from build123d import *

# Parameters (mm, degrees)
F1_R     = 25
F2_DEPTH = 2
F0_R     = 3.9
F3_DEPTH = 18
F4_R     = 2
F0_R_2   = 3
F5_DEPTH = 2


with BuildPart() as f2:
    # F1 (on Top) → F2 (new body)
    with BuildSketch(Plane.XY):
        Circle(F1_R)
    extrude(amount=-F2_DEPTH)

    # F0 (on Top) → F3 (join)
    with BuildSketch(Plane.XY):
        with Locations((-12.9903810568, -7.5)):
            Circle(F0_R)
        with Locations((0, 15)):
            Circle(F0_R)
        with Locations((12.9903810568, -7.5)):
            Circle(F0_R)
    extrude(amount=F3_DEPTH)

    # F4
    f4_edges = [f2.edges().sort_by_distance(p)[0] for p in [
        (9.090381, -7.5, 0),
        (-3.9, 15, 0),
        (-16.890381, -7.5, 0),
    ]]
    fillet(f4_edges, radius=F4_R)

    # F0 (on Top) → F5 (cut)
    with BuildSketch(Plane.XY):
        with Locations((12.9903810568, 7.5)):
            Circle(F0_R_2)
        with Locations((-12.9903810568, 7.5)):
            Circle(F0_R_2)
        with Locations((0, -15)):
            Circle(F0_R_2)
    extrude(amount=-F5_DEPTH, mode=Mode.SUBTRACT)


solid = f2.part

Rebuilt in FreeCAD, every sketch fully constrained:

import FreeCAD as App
import Part
import Sketcher


def edges_at(feature, points):
    """Names of the edges that pass closest to the given points."""
    edges = feature.Shape.Edges
    near = lambda p: min(range(len(edges)), key=lambda i: edges[i].distToShape(Part.Vertex(*p))[0])
    return sorted({f"Edge{near(p) + 1}" for p in points})

doc = App.newDocument("Part")
body = doc.addObject("PartDesign::Body", "Body")

# Sketch on XY plane
sketch1 = body.newObject("Sketcher::SketchObject", "Sketch")
sketch1.AttachmentSupport = (doc.getObject("XY_Plane"), [""])
sketch1.MapMode = "FlatFace"
sketch1.addGeometry(Part.Circle(App.Vector(0, 0, 0), App.Vector(0, 0, 1), 25), False)
sketch1.addConstraint([
    Sketcher.Constraint("Coincident", 0, 3, -1, 1),
    Sketcher.Constraint("Diameter", 0, 50.0),
])
pad1 = body.newObject("PartDesign::Pad", "Pad")
pad1.Profile = sketch1
pad1.Length = 2
pad1.Reversed = True

# Sketch on XY plane
sketch2 = body.newObject("Sketcher::SketchObject", "Sketch001")
sketch2.AttachmentSupport = (doc.getObject("XY_Plane"), [""])
sketch2.MapMode = "FlatFace"
sketch2.addGeometry([
    Part.Circle(App.Vector(-13, -7.5, 0), App.Vector(0, 0, 1), 3.9),
    Part.Circle(App.Vector(0, 15, 0), App.Vector(0, 0, 1), 3.9),
    Part.Circle(App.Vector(13, -7.5, 0), App.Vector(0, 0, 1), 3.9),
], False)
sketch2.addConstraint([
    Sketcher.Constraint("Equal", 0, 1),
    Sketcher.Constraint("Equal", 1, 2),
    Sketcher.Constraint("Symmetric", 0, 3, 2, 3, -2),
    Sketcher.Constraint("PointOnObject", 1, 3, -2),
    Sketcher.Constraint("Diameter", 0, 7.8),
    Sketcher.Constraint("DistanceY", -1, 1, 1, 3, 15.0),
    Sketcher.Constraint("DistanceY", 0, 3, -1, 1, 7.5),
    Sketcher.Constraint("DistanceX", 0, 3, -1, 1, 12.990381),
])
pad2 = body.newObject("PartDesign::Pad", "Pad001")
pad2.Profile = sketch2
pad2.Length = 18
doc.recompute()

fillet = body.newObject("PartDesign::Fillet", "Fillet")
fillet.Base = (pad2, edges_at(pad2, [(9.09, -7.5, 0), (-3.9, 15, 0), (-16.89, -7.5, 0)]))
fillet.Radius = 2

# Sketch on XY plane
sketch3 = body.newObject("Sketcher::SketchObject", "Sketch002")
sketch3.AttachmentSupport = (doc.getObject("XY_Plane"), [""])
sketch3.MapMode = "FlatFace"
sketch3.addGeometry([
    Part.Circle(App.Vector(13, 7.5, 0), App.Vector(0, 0, 1), 3),
    Part.Circle(App.Vector(-13, 7.5, 0), App.Vector(0, 0, 1), 3),
    Part.Circle(App.Vector(0, -15, 0), App.Vector(0, 0, 1), 3),
], False)
sketch3.addConstraint([
    Sketcher.Constraint("Equal", 0, 1),
    Sketcher.Constraint("Equal", 1, 2),
    Sketcher.Constraint("Symmetric", 0, 3, 1, 3, -2),
    Sketcher.Constraint("PointOnObject", 2, 3, -2),
    Sketcher.Constraint("Diameter", 0, 6.0),
    Sketcher.Constraint("DistanceY", 2, 3, -1, 1, 15.0),
    Sketcher.Constraint("DistanceY", -1, 1, 0, 3, 7.5),
    Sketcher.Constraint("DistanceX", -1, 1, 0, 3, 12.990381),
])
pocket1 = body.newObject("PartDesign::Pocket", "Pocket")
pocket1.Profile = sketch3
pocket1.Length = 2

doc.recompute()
